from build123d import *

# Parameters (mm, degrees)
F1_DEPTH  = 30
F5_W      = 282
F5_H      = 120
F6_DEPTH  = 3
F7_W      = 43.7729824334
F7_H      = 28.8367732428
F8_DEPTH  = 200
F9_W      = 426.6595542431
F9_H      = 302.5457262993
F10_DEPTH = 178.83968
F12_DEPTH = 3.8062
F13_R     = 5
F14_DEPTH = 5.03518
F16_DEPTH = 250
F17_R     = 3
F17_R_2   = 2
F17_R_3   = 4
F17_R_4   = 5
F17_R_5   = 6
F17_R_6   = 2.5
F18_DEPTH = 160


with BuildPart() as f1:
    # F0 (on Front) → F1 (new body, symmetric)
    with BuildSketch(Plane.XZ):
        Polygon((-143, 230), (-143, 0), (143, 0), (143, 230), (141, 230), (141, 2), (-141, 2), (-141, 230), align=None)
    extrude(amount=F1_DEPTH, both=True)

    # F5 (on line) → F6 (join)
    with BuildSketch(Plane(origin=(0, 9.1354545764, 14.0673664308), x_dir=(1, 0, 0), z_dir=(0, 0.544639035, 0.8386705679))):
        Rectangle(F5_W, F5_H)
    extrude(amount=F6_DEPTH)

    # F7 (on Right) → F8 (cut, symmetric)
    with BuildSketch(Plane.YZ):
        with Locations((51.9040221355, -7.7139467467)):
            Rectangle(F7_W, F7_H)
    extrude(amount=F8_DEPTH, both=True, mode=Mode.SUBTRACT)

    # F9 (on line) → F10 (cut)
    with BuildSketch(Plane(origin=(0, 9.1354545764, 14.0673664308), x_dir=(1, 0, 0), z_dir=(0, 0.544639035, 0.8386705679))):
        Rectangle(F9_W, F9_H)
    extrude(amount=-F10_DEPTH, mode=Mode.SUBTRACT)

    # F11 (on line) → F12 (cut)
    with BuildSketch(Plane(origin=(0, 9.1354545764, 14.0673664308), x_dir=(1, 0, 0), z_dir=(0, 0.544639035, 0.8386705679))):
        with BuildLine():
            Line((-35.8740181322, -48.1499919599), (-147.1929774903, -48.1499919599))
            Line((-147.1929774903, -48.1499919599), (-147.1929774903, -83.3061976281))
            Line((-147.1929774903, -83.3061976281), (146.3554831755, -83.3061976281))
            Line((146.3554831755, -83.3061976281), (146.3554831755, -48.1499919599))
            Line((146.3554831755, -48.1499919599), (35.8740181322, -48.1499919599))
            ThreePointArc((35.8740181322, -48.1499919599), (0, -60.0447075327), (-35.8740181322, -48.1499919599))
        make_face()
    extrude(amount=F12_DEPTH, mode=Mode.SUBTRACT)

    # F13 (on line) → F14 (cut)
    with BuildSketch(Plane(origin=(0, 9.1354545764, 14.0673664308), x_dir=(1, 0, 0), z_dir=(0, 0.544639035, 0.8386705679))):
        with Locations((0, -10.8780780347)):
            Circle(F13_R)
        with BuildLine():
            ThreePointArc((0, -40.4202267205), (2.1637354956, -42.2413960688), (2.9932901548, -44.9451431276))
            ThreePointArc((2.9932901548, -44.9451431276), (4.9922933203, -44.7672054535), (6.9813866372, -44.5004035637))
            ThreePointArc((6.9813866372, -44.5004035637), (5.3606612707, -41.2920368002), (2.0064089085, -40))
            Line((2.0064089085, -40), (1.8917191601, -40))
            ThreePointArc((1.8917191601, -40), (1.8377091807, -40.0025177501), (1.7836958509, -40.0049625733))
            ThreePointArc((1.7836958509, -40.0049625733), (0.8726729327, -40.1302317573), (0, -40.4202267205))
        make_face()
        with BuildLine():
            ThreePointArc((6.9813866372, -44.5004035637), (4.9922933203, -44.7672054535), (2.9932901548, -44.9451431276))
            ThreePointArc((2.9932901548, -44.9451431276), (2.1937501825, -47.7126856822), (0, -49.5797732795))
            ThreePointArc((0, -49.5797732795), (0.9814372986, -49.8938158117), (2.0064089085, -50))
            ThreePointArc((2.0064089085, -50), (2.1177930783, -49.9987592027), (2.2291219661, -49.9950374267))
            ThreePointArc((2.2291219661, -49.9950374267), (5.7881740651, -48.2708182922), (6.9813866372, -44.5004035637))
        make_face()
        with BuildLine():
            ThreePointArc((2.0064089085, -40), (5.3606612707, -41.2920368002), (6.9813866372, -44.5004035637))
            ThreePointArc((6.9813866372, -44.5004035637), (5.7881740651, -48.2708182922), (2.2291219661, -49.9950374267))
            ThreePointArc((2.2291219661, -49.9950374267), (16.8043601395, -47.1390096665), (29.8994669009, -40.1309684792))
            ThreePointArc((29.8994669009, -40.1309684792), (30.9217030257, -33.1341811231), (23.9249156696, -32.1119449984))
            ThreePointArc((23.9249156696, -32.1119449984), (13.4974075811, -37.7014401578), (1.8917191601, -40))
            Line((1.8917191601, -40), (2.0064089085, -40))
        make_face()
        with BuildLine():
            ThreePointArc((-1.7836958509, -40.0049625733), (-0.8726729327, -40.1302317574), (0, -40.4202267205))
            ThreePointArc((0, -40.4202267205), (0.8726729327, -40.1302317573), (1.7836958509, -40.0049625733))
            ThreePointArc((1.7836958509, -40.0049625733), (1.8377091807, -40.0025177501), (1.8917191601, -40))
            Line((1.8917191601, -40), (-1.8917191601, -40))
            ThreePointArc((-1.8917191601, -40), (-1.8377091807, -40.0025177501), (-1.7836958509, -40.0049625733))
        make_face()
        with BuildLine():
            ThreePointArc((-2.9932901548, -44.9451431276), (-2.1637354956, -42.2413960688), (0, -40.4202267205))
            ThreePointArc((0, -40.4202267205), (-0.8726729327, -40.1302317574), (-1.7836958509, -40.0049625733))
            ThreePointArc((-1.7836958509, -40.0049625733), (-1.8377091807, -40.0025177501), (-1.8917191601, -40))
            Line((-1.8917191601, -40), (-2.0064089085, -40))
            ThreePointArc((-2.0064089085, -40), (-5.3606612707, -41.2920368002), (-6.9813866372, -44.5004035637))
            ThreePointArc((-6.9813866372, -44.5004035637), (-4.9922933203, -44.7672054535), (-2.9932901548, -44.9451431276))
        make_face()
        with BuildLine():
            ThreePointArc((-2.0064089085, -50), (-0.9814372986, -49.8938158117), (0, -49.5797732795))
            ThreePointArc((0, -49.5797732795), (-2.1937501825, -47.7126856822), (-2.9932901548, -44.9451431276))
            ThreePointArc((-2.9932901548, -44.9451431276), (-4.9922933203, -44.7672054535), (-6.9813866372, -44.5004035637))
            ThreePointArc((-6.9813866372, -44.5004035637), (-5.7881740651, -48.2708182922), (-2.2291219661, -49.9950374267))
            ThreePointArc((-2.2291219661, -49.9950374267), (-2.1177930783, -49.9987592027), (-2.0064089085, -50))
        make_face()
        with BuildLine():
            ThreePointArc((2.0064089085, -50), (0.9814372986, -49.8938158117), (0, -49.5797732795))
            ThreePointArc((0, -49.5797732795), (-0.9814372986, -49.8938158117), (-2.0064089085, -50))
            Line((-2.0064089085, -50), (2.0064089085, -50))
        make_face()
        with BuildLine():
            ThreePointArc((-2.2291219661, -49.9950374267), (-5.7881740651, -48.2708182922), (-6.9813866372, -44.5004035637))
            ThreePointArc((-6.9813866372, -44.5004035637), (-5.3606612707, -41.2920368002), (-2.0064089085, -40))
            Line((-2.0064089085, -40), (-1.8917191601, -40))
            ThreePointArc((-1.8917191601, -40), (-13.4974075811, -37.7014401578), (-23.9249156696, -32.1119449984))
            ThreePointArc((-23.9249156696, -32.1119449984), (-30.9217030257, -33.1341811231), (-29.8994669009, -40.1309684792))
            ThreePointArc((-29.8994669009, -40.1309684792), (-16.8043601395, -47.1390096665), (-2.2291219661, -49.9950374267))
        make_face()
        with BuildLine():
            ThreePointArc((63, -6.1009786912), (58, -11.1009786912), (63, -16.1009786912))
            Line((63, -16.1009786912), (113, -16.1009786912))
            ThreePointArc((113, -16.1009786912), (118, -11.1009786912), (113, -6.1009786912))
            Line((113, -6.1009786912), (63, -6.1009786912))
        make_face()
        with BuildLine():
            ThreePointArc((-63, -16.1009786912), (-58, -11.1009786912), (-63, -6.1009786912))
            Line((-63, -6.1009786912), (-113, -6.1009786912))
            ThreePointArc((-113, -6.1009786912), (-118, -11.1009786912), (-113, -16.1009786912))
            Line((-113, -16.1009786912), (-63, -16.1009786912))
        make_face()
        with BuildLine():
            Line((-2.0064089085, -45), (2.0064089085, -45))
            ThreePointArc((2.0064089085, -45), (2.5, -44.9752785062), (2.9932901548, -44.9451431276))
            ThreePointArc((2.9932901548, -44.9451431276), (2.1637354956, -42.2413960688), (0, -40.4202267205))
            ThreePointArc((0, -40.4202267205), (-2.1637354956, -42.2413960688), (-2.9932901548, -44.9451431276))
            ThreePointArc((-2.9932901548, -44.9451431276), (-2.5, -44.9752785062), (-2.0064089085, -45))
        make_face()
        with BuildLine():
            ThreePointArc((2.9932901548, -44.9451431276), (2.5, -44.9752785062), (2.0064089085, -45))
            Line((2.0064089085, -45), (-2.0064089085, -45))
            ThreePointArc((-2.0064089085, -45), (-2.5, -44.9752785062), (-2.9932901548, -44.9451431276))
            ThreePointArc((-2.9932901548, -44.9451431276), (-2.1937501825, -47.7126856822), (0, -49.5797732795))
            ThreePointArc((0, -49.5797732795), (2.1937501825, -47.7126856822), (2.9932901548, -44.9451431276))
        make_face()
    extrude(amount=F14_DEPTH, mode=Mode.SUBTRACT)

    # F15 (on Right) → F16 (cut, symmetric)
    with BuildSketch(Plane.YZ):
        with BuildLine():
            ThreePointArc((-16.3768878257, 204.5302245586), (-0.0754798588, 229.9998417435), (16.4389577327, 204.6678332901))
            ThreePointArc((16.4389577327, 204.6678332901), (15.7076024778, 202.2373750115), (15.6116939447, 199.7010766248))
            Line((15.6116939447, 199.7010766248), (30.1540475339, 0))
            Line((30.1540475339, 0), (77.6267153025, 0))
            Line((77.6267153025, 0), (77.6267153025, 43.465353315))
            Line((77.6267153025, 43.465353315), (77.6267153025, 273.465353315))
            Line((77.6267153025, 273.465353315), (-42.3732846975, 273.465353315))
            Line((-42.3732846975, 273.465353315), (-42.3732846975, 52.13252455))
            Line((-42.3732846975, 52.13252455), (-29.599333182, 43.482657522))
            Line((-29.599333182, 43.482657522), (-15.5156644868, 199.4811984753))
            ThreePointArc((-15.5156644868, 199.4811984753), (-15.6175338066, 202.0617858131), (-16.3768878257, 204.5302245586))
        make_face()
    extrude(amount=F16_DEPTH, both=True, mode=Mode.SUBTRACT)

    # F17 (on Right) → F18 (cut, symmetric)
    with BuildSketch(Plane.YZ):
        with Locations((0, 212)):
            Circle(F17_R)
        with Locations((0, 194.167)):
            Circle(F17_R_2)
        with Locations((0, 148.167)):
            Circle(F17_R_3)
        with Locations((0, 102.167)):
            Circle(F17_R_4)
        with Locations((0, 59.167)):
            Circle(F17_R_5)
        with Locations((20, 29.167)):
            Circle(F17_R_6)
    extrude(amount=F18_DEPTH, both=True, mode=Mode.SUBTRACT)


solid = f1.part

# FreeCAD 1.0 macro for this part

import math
import FreeCAD as App
import Part
import Sketcher
Q = App.Units.Quantity

doc = App.newDocument("Part")
body = doc.addObject("PartDesign::Body", "Body")

sketch1 = body.newObject("Sketcher::SketchObject", "Sketch")
sketch1.AttachmentSupport = (doc.getObject("XZ_Plane"), [""])
sketch1.MapMode = "FlatFace"
sketch1.addGeometry(Part.LineSegment(App.Vector(-143, 230, 0), App.Vector(-143, 0, 0)), False)
sketch1.addGeometry(Part.LineSegment(App.Vector(-143, 0, 0), App.Vector(143, 0, 0)), False)
sketch1.addGeometry(Part.LineSegment(App.Vector(143, 0, 0), App.Vector(143, 230, 0)), False)
sketch1.addGeometry(Part.LineSegment(App.Vector(143, 230, 0), App.Vector(141, 230, 0)), False)
sketch1.addGeometry(Part.LineSegment(App.Vector(141, 230, 0), App.Vector(141, 2, 0)), False)
sketch1.addGeometry(Part.LineSegment(App.Vector(141, 2, 0), App.Vector(-141, 2, 0)), False)
sketch1.addGeometry(Part.LineSegment(App.Vector(-141, 2, 0), App.Vector(-141, 230, 0)), False)
sketch1.addGeometry(Part.LineSegment(App.Vector(-141, 230, 0), App.Vector(-143, 230, 0)), False)
sketch1.addConstraint(Sketcher.Constraint("Coincident", 0, 2, 1, 1))
sketch1.addConstraint(Sketcher.Constraint("Coincident", 1, 2, 2, 1))
sketch1.addConstraint(Sketcher.Constraint("Coincident", 2, 2, 3, 1))
sketch1.addConstraint(Sketcher.Constraint("Coincident", 3, 2, 4, 1))
sketch1.addConstraint(Sketcher.Constraint("Coincident", 4, 2, 5, 1))
sketch1.addConstraint(Sketcher.Constraint("Coincident", 5, 2, 6, 1))
sketch1.addConstraint(Sketcher.Constraint("Coincident", 6, 2, 7, 1))
sketch1.addConstraint(Sketcher.Constraint("Coincident", 7, 2, 0, 1))
sketch1.addConstraint(Sketcher.Constraint("Vertical", 0))
sketch1.addConstraint(Sketcher.Constraint("Horizontal", 1))
sketch1.addConstraint(Sketcher.Constraint("Vertical", 2))
sketch1.addConstraint(Sketcher.Constraint("Horizontal", 3))
sketch1.addConstraint(Sketcher.Constraint("Vertical", 4))
sketch1.addConstraint(Sketcher.Constraint("Horizontal", 5))
sketch1.addConstraint(Sketcher.Constraint("Vertical", 6))
sketch1.addConstraint(Sketcher.Constraint("Horizontal", 7))
sketch1.addConstraint(Sketcher.Constraint("Symmetric", 0, 2, 1, 2, -1, 1))
sketch1.addConstraint(Sketcher.Constraint("Symmetric", 3, 2, 6, 2, -2))
sketch1.addConstraint(Sketcher.Constraint("DistanceX", 1, 1, 1, 2, Q("286 mm")))
sketch1.addConstraint(Sketcher.Constraint("DistanceX", 3, 2, 3, 1, Q("2 mm")))
sketch1.addConstraint(Sketcher.Constraint("DistanceY", 0, 2, 0, 1, Q("230 mm")))
sketch1.addConstraint(Sketcher.Constraint("DistanceY", 4, 2, 4, 1, Q("228 mm")))
pad1 = body.newObject("PartDesign::Pad", "Pad")
pad1.Profile = sketch1
pad1.Length = 60
pad1.Midplane = True

sketch2 = body.newObject("Sketcher::SketchObject", "Sketch001")
sketch2.Placement = App.Placement(App.Vector(0, 9.135455, 14.067366), App.Rotation(App.Vector(1, 0, 0), App.Vector(0, 0.838670568, -0.544639035), App.Vector(0, 0.544639035, 0.838670568), "ZXY"))
sketch2.addGeometry(Part.LineSegment(App.Vector(-141, 60, 0), App.Vector(-141, -60, 0)), False)
sketch2.addGeometry(Part.LineSegment(App.Vector(-141, -60, 0), App.Vector(141, -60, 0)), False)
sketch2.addGeometry(Part.LineSegment(App.Vector(141, -60, 0), App.Vector(141, 60, 0)), False)
sketch2.addGeometry(Part.LineSegment(App.Vector(141, 60, 0), App.Vector(-141, 60, 0)), False)
sketch2.addConstraint(Sketcher.Constraint("Coincident", 0, 2, 1, 1))
sketch2.addConstraint(Sketcher.Constraint("Coincident", 1, 2, 2, 1))
sketch2.addConstraint(Sketcher.Constraint("Coincident", 2, 2, 3, 1))
sketch2.addConstraint(Sketcher.Constraint("Coincident", 3, 2, 0, 1))
sketch2.addConstraint(Sketcher.Constraint("Vertical", 0))
sketch2.addConstraint(Sketcher.Constraint("Horizontal", 1))
sketch2.addConstraint(Sketcher.Constraint("Vertical", 2))
sketch2.addConstraint(Sketcher.Constraint("Horizontal", 3))
sketch2.addConstraint(Sketcher.Constraint("Symmetric", 0, 2, 2, 2, -1, 1))
sketch2.addConstraint(Sketcher.Constraint("DistanceX", 1, 1, 1, 2, Q("282 mm")))
sketch2.addConstraint(Sketcher.Constraint("DistanceY", 0, 2, 0, 1, Q("120 mm")))
pad2 = body.newObject("PartDesign::Pad", "Pad001")
pad2.Profile = sketch2
pad2.Length = 3

sketch3 = body.newObject("Sketcher::SketchObject", "Sketch002")
sketch3.AttachmentSupport = (doc.getObject("YZ_Plane"), [""])
sketch3.MapMode = "FlatFace"
sketch3.addGeometry(Part.LineSegment(App.Vector(30, 7, 0), App.Vector(30, -22, 0)), False)
sketch3.addGeometry(Part.LineSegment(App.Vector(30, -22, 0), App.Vector(74, -22, 0)), False)
sketch3.addGeometry(Part.LineSegment(App.Vector(74, -22, 0), App.Vector(74, 7, 0)), False)
sketch3.addGeometry(Part.LineSegment(App.Vector(74, 7, 0), App.Vector(30, 7, 0)), False)
sketch3.addConstraint(Sketcher.Constraint("Coincident", 0, 2, 1, 1))
sketch3.addConstraint(Sketcher.Constraint("Coincident", 1, 2, 2, 1))
sketch3.addConstraint(Sketcher.Constraint("Coincident", 2, 2, 3, 1))
sketch3.addConstraint(Sketcher.Constraint("Coincident", 3, 2, 0, 1))
sketch3.addConstraint(Sketcher.Constraint("Vertical", 0))
sketch3.addConstraint(Sketcher.Constraint("Horizontal", 1))
sketch3.addConstraint(Sketcher.Constraint("Vertical", 2))
sketch3.addConstraint(Sketcher.Constraint("Horizontal", 3))
sketch3.addConstraint(Sketcher.Constraint("DistanceX", 1, 1, 1, 2, Q("43.772982 mm")))
sketch3.addConstraint(Sketcher.Constraint("DistanceY", 0, 2, 0, 1, Q("28.836773 mm")))
sketch3.addConstraint(Sketcher.Constraint("DistanceX", -1, 1, 0, 2, Q("30.017531 mm")))
sketch3.addConstraint(Sketcher.Constraint("DistanceY", -1, 1, 2, 2, Q("6.70444 mm")))
pocket1 = body.newObject("PartDesign::Pocket", "Pocket")
pocket1.Profile = sketch3
pocket1.Length = 400
pocket1.Midplane = True

sketch4 = body.newObject("Sketcher::SketchObject", "Sketch003")
sketch4.Placement = App.Placement(App.Vector(0, 9.135455, 14.067366), App.Rotation(App.Vector(1, 0, 0), App.Vector(0, 0.838670568, -0.544639035), App.Vector(0, 0.544639035, 0.838670568), "ZXY"))
sketch4.addGeometry(Part.LineSegment(App.Vector(-213, 151, 0), App.Vector(-213, -151, 0)), False)
sketch4.addGeometry(Part.LineSegment(App.Vector(-213, -151, 0), App.Vector(213, -151, 0)), False)
sketch4.addGeometry(Part.LineSegment(App.Vector(213, -151, 0), App.Vector(213, 151, 0)), False)
sketch4.addGeometry(Part.LineSegment(App.Vector(213, 151, 0), App.Vector(-213, 151, 0)), False)
sketch4.addConstraint(Sketcher.Constraint("Coincident", 0, 2, 1, 1))
sketch4.addConstraint(Sketcher.Constraint("Coincident", 1, 2, 2, 1))
sketch4.addConstraint(Sketcher.Constraint("Coincident", 2, 2, 3, 1))
sketch4.addConstraint(Sketcher.Constraint("Coincident", 3, 2, 0, 1))
sketch4.addConstraint(Sketcher.Constraint("Vertical", 0))
sketch4.addConstraint(Sketcher.Constraint("Horizontal", 1))
sketch4.addConstraint(Sketcher.Constraint("Vertical", 2))
sketch4.addConstraint(Sketcher.Constraint("Horizontal", 3))
sketch4.addConstraint(Sketcher.Constraint("Symmetric", 0, 2, 2, 2, -1, 1))
sketch4.addConstraint(Sketcher.Constraint("DistanceX", 1, 1, 1, 2, Q("426.659554 mm")))
sketch4.addConstraint(Sketcher.Constraint("DistanceY", 0, 2, 0, 1, Q("302.545726 mm")))
pocket2 = body.newObject("PartDesign::Pocket", "Pocket001")
pocket2.Profile = sketch4
pocket2.Length = 178.83968

sketch5 = body.newObject("Sketcher::SketchObject", "Sketch004")
sketch5.Placement = App.Placement(App.Vector(0, 9.135455, 14.067366), App.Rotation(App.Vector(1, 0, 0), App.Vector(0, 0.838670568, -0.544639035), App.Vector(0, 0.544639035, 0.838670568), "ZXY"))
sketch5.addGeometry(Part.LineSegment(App.Vector(-36, -48, 0), App.Vector(-147, -48, 0)), False)
sketch5.addGeometry(Part.LineSegment(App.Vector(-147, -48, 0), App.Vector(-147, -83, 0)), False)
sketch5.addGeometry(Part.LineSegment(App.Vector(-147, -83, 0), App.Vector(146, -83, 0)), False)
sketch5.addGeometry(Part.LineSegment(App.Vector(146, -83, 0), App.Vector(146, -48, 0)), False)
sketch5.addGeometry(Part.LineSegment(App.Vector(146, -48, 0), App.Vector(36, -48, 0)), False)
sketch5.addGeometry(Part.ArcOfCircle(Part.Circle(App.Vector(0, 0, 0), App.Vector(0, 0, 1), 60), math.radians(-127), math.radians(-53)), False)
sketch5.addConstraint(Sketcher.Constraint("Coincident", 0, 2, 1, 1))
sketch5.addConstraint(Sketcher.Constraint("Coincident", 1, 2, 2, 1))
sketch5.addConstraint(Sketcher.Constraint("Coincident", 2, 2, 3, 1))
sketch5.addConstraint(Sketcher.Constraint("Coincident", 3, 2, 4, 1))
sketch5.addConstraint(Sketcher.Constraint("Coincident", 4, 2, 5, 2))
sketch5.addConstraint(Sketcher.Constraint("Coincident", 5, 1, 0, 1))
sketch5.addConstraint(Sketcher.Constraint("Horizontal", 0))
sketch5.addConstraint(Sketcher.Constraint("Vertical", 1))
sketch5.addConstraint(Sketcher.Constraint("Horizontal", 2))
sketch5.addConstraint(Sketcher.Constraint("Vertical", 3))
sketch5.addConstraint(Sketcher.Constraint("Horizontal", 4))
sketch5.addConstraint(Sketcher.Constraint("Coincident", 5, 3, -1, 1))
sketch5.addConstraint(Sketcher.Constraint("Horizontal", 0, 2, 3, 2))
sketch5.addConstraint(Sketcher.Constraint("Radius", 5, Q("60.044708 mm")))
sketch5.addConstraint(Sketcher.Constraint("DistanceX", 0, 2, 0, 1, Q("111.318959 mm")))
sketch5.addConstraint(Sketcher.Constraint("DistanceX", 2, 1, 2, 2, Q("293.548461 mm")))
sketch5.addConstraint(Sketcher.Constraint("DistanceX", 4, 2, 4, 1, Q("110.481465 mm")))
sketch5.addConstraint(Sketcher.Constraint("DistanceY", 1, 2, 1, 1, Q("35.156206 mm")))
pocket3 = body.newObject("PartDesign::Pocket", "Pocket002")
pocket3.Profile = sketch5
pocket3.Length = 3.8062
pocket3.Reversed = True

sketch6 = body.newObject("Sketcher::SketchObject", "Sketch005")
sketch6.Placement = App.Placement(App.Vector(0, 9.135455, 14.067366), App.Rotation(App.Vector(1, 0, 0), App.Vector(0, 0.838670568, -0.544639035), App.Vector(0, 0.544639035, 0.838670568), "ZXY"))
sketch6.addGeometry(Part.Circle(App.Vector(0, -10.88, 0), App.Vector(0, 0, 1), 5), False)
sketch6.addGeometry(Part.ArcOfCircle(Part.Circle(App.Vector(-2.01, -45, 0), App.Vector(0, 0, 1), 5), math.radians(-92.55), math.radians(-90)), False)
sketch6.addGeometry(Part.LineSegment(App.Vector(-2.01, -50, 0), App.Vector(2.01, -50, 0)), False)
sketch6.addGeometry(Part.ArcOfCircle(Part.Circle(App.Vector(2.01, -45, 0), App.Vector(0, 0, 1), 5), math.radians(-90), math.radians(-87.45)), False)
sketch6.addGeometry(Part.ArcOfCircle(Part.Circle(App.Vector(0, 0, 0), App.Vector(0, 0, 1), 50.04), math.radians(-87), math.radians(-53)), False)
sketch6.addGeometry(Part.ArcOfCircle(Part.Circle(App.Vector(26.91, -36.12, 0), App.Vector(0, 0, 1), 5), math.radians(-53), math.radians(127)), False)
sketch6.addGeometry(Part.ArcOfCircle(Part.Circle(App.Vector(0, 0, 0), App.Vector(0, 0, 1), 40.04), math.radians(-87), math.radians(-53)), False)
sketch6.addGeometry(Part.LineSegment(App.Vector(1.89, -40, 0), App.Vector(-1.89, -40, 0)), False)
sketch6.addGeometry(Part.ArcOfCircle(Part.Circle(App.Vector(0, 0, 0), App.Vector(0, 0, 1), 40.04), math.radians(-127), math.radians(-93)), False)
sketch6.addGeometry(Part.ArcOfCircle(Part.Circle(App.Vector(-26.91, -36.12, 0), App.Vector(0, 0, 1), 5), math.radians(53), math.radians(233)), False)
sketch6.addGeometry(Part.ArcOfCircle(Part.Circle(App.Vector(0, 0, 0), App.Vector(0, 0, 1), 50.04), math.radians(-127), math.radians(-93)), False)
sketch6.addGeometry(Part.ArcOfCircle(Part.Circle(App.Vector(63, -11.1, 0), App.Vector(0, 0, 1), 5), math.radians(90), math.radians(270)), False)
sketch6.addGeometry(Part.LineSegment(App.Vector(63, -16.1, 0), App.Vector(113, -16.1, 0)), False)
sketch6.addGeometry(Part.ArcOfCircle(Part.Circle(App.Vector(113, -11.1, 0), App.Vector(0, 0, 1), 5), math.radians(-90), math.radians(90)), False)
sketch6.addGeometry(Part.LineSegment(App.Vector(113, -6.1, 0), App.Vector(63, -6.1, 0)), False)
sketch6.addGeometry(Part.ArcOfCircle(Part.Circle(App.Vector(-63, -11.1, 0), App.Vector(0, 0, 1), 5), math.radians(-90), math.radians(90)), False)
sketch6.addGeometry(Part.LineSegment(App.Vector(-63, -6.1, 0), App.Vector(-113, -6.1, 0)), False)
sketch6.addGeometry(Part.ArcOfCircle(Part.Circle(App.Vector(-113, -11.1, 0), App.Vector(0, 0, 1), 5), math.radians(90), math.radians(270)), False)
sketch6.addGeometry(Part.LineSegment(App.Vector(-113, -16.1, 0), App.Vector(-63, -16.1, 0)), False)
sketch6.addConstraint(Sketcher.Constraint("Tangent", 1, 2, 2, 1))
sketch6.addConstraint(Sketcher.Constraint("Tangent", 2, 2, 3, 1))
sketch6.addConstraint(Sketcher.Constraint("Tangent", 3, 2, 4, 1))
sketch6.addConstraint(Sketcher.Constraint("Tangent", 4, 2, 5, 1))
sketch6.addConstraint(Sketcher.Constraint("Tangent", 5, 2, 6, 2))
sketch6.addConstraint(Sketcher.Constraint("Coincident", 6, 1, 7, 1))
sketch6.addConstraint(Sketcher.Constraint("Coincident", 7, 2, 8, 2))
sketch6.addConstraint(Sketcher.Constraint("Tangent", 8, 1, 9, 1))
sketch6.addConstraint(Sketcher.Constraint("Tangent", 9, 2, 10, 1))
sketch6.addConstraint(Sketcher.Constraint("Tangent", 10, 2, 1, 1))
sketch6.addConstraint(Sketcher.Constraint("Tangent", 11, 2, 12, 1))
sketch6.addConstraint(Sketcher.Constraint("Tangent", 12, 2, 13, 1))
sketch6.addConstraint(Sketcher.Constraint("Tangent", 13, 2, 14, 1))
sketch6.addConstraint(Sketcher.Constraint("Tangent", 14, 2, 11, 1))
sketch6.addConstraint(Sketcher.Constraint("Tangent", 15, 2, 16, 1))
sketch6.addConstraint(Sketcher.Constraint("Tangent", 16, 2, 17, 1))
sketch6.addConstraint(Sketcher.Constraint("Tangent", 17, 2, 18, 1))
sketch6.addConstraint(Sketcher.Constraint("Tangent", 18, 2, 15, 1))
sketch6.addConstraint(Sketcher.Constraint("Horizontal", 2))
sketch6.addConstraint(Sketcher.Constraint("Horizontal", 7))
sketch6.addConstraint(Sketcher.Constraint("Horizontal", 12))
sketch6.addConstraint(Sketcher.Constraint("Horizontal", 14))
sketch6.addConstraint(Sketcher.Constraint("Horizontal", 16))
sketch6.addConstraint(Sketcher.Constraint("Horizontal", 18))
sketch6.addConstraint(Sketcher.Constraint("Coincident", 4, 3, -1, 1))
sketch6.addConstraint(Sketcher.Constraint("Coincident", 6, 3, -1, 1))
sketch6.addConstraint(Sketcher.Constraint("Coincident", 8, 3, -1, 1))
sketch6.addConstraint(Sketcher.Constraint("Coincident", 10, 3, -1, 1))
sketch6.addConstraint(Sketcher.Constraint("Equal", 0, 1))
sketch6.addConstraint(Sketcher.Constraint("Equal", 1, 3))
sketch6.addConstraint(Sketcher.Constraint("Equal", 3, 5))
sketch6.addConstraint(Sketcher.Constraint("Equal", 6, 8))
sketch6.addConstraint(Sketcher.Constraint("Equal", 5, 9))
sketch6.addConstraint(Sketcher.Constraint("Equal", 9, 11))
sketch6.addConstraint(Sketcher.Constraint("Equal", 13, 15))
sketch6.addConstraint(Sketcher.Constraint("Symmetric", 11, 3, 15, 3, -2))
sketch6.addConstraint(Sketcher.Constraint("PointOnObject", 0, 3, -2))
sketch6.addConstraint(Sketcher.Constraint("Horizontal", 5, 3, 9, 3))
sketch6.addConstraint(Sketcher.Constraint("Equal", 14, 16))
sketch6.addConstraint(Sketcher.Constraint("Diameter", 0, Q("10 mm")))
sketch6.addConstraint(Sketcher.Constraint("DistanceX", 12, 1, 12, 2, Q("50 mm")))
sketch6.addConstraint(Sketcher.Constraint("DistanceY", 1, 3, -1, 1, Q("45 mm")))
sketch6.addConstraint(Sketcher.Constraint("DistanceX", -1, 1, 11, 3, Q("63 mm")))
sketch6.addConstraint(Sketcher.Constraint("DistanceY", 6, 1, -1, 1, Q("40 mm")))
sketch6.addConstraint(Sketcher.Constraint("Radius", 4, Q("50.044708 mm")))
sketch6.addConstraint(Sketcher.Constraint("DistanceX", 1, 3, 5, 3, Q("28.9186 mm")))
sketch6.addConstraint(Sketcher.Constraint("DistanceY", 11, 3, 0, 3, Q("0.222901 mm")))
sketch6.addConstraint(Sketcher.Constraint("DistanceY", 0, 3, -1, 1, Q("10.878078 mm")))
pocket4 = body.newObject("PartDesign::Pocket", "Pocket003")
pocket4.Profile = sketch6
pocket4.Length = 5.03518
pocket4.Reversed = True

sketch7 = body.newObject("Sketcher::SketchObject", "Sketch006")
sketch7.AttachmentSupport = (doc.getObject("YZ_Plane"), [""])
sketch7.MapMode = "FlatFace"
sketch7.addGeometry(Part.ArcOfCircle(Part.Circle(App.Vector(0, 212, 0), App.Vector(0, 0, 1), 18), math.radians(-24.03801), math.radians(204.518531)), False)
sketch7.addGeometry(Part.ArcOfCircle(Part.Circle(App.Vector(25.571712, 200.594407, 0), App.Vector(0, 0, 1), 10), math.radians(155.96199), math.radians(185.12524)), False)
sketch7.addGeometry(Part.LineSegment(App.Vector(15.611694, 199.701077, 0), App.Vector(30.154048, 0, 0)), False)
sketch7.addGeometry(Part.LineSegment(App.Vector(30.154048, 0, 0), App.Vector(77.626715, 0, 0)), False)
sketch7.addGeometry(Part.LineSegment(App.Vector(77.626715, 0, 0), App.Vector(77.626715, 273.465353, 0)), False)
sketch7.addGeometry(Part.LineSegment(App.Vector(77.626715, 273.465353, 0), App.Vector(-42.373285, 273.465353, 0)), False)
sketch7.addGeometry(Part.LineSegment(App.Vector(-42.373285, 273.465353, 0), App.Vector(-42.373285, 52.132525, 0)), False)
sketch7.addGeometry(Part.LineSegment(App.Vector(-42.373285, 52.132525, 0), App.Vector(-29.599333, 43.482658, 0)), False)
sketch7.addGeometry(Part.LineSegment(App.Vector(-29.599333, 43.482658, 0), App.Vector(-15.515664, 199.481198, 0)), False)
sketch7.addGeometry(Part.ArcOfCircle(Part.Circle(App.Vector(-25.475159, 200.380349, 0), App.Vector(0, 0, 1), 10), math.radians(-5.158722), math.radians(24.518531)), False)
sketch7.addConstraint(Sketcher.Constraint("Coincident", 0, 1, 1, 1))
sketch7.addConstraint(Sketcher.Constraint("Coincident", 1, 2, 2, 1))
sketch7.addConstraint(Sketcher.Constraint("Coincident", 2, 2, 3, 1))
sketch7.addConstraint(Sketcher.Constraint("Coincident", 3, 2, 4, 1))
sketch7.addConstraint(Sketcher.Constraint("Coincident", 4, 2, 5, 1))
sketch7.addConstraint(Sketcher.Constraint("Coincident", 5, 2, 6, 1))
sketch7.addConstraint(Sketcher.Constraint("Coincident", 6, 2, 7, 1))
sketch7.addConstraint(Sketcher.Constraint("Coincident", 7, 2, 8, 1))
sketch7.addConstraint(Sketcher.Constraint("Coincident", 8, 2, 9, 1))
sketch7.addConstraint(Sketcher.Constraint("Coincident", 9, 2, 0, 2))
sketch7.addConstraint(Sketcher.Constraint("Horizontal", 3))
sketch7.addConstraint(Sketcher.Constraint("Vertical", 4))
sketch7.addConstraint(Sketcher.Constraint("Horizontal", 5))
sketch7.addConstraint(Sketcher.Constraint("Vertical", 6))
sketch7.addConstraint(Sketcher.Constraint("PointOnObject", 0, 3, -2))
sketch7.addConstraint(Sketcher.Constraint("PointOnObject", 2, 2, -1))
sketch7.addConstraint(Sketcher.Constraint("Radius", 0, Q("18 mm")))
sketch7.addConstraint(Sketcher.Constraint("Radius", 1, Q("10 mm")))
sketch7.addConstraint(Sketcher.Constraint("Radius", 9, Q("10 mm")))
sketch7.addConstraint(Sketcher.Constraint("DistanceX", 5, 2, 5, 1, Q("120 mm")))
sketch7.addConstraint(Sketcher.Constraint("DistanceY", -1, 1, 0, 3, Q("212 mm")))
sketch7.addConstraint(Sketcher.Constraint("DistanceY", 6, 2, 6, 1, Q("221.332829 mm")))
sketch7.addConstraint(Sketcher.Constraint("DistanceY", -1, 1, 8, 2, Q("199.481198 mm")))
sketch7.addConstraint(Sketcher.Constraint("Distance", 2, Q("200.229868 mm")))
sketch7.addConstraint(Sketcher.Constraint("DistanceX", 3, 1, 3, 2, Q("47.472668 mm")))
sketch7.addConstraint(Sketcher.Constraint("DistanceY", 4, 1, 4, 2, Q("273.465353 mm")))
sketch7.addConstraint(Sketcher.Constraint("DistanceX", 9, 3, -1, 1, Q("25.475159 mm")))
sketch7.addConstraint(Sketcher.Constraint("DistanceX", 9, 3, 1, 3, Q("51.046871 mm")))
sketch7.addConstraint(Sketcher.Constraint("DistanceY", 1, 2, 1, 3, Q("0.893331 mm")))
sketch7.addConstraint(Sketcher.Constraint("DistanceX", 0, 1, 2, 2, Q("13.71509 mm")))
sketch7.addConstraint(Sketcher.Constraint("DistanceX", 6, 2, 7, 2, Q("12.773952 mm")))
sketch7.addConstraint(Sketcher.Constraint("DistanceY", 7, 2, 9, 3, Q("156.897692 mm")))
sketch7.addConstraint(Sketcher.Constraint("DistanceX", 9, 3, 9, 2, Q("9.098271 mm")))
pocket5 = body.newObject("PartDesign::Pocket", "Pocket004")
pocket5.Profile = sketch7
pocket5.Length = 500
pocket5.Midplane = True

sketch8 = body.newObject("Sketcher::SketchObject", "Sketch007")
sketch8.AttachmentSupport = (doc.getObject("YZ_Plane"), [""])
sketch8.MapMode = "FlatFace"
sketch8.addGeometry(Part.Circle(App.Vector(0, 212, 0), App.Vector(0, 0, 1), 3), False)
sketch8.addGeometry(Part.Circle(App.Vector(0, 194.2, 0), App.Vector(0, 0, 1), 2), False)
sketch8.addGeometry(Part.Circle(App.Vector(0, 148.2, 0), App.Vector(0, 0, 1), 4), False)
sketch8.addGeometry(Part.Circle(App.Vector(0, 102.2, 0), App.Vector(0, 0, 1), 5), False)
sketch8.addGeometry(Part.Circle(App.Vector(0, 59.2, 0), App.Vector(0, 0, 1), 6), False)
sketch8.addGeometry(Part.Circle(App.Vector(20, 29.2, 0), App.Vector(0, 0, 1), 2.5), False)
sketch8.addConstraint(Sketcher.Constraint("PointOnObject", 0, 3, -2))
sketch8.addConstraint(Sketcher.Constraint("PointOnObject", 1, 3, -2))
sketch8.addConstraint(Sketcher.Constraint("PointOnObject", 2, 3, -2))
sketch8.addConstraint(Sketcher.Constraint("PointOnObject", 3, 3, -2))
sketch8.addConstraint(Sketcher.Constraint("PointOnObject", 4, 3, -2))
sketch8.addConstraint(Sketcher.Constraint("Diameter", 0, Q("6 mm")))
sketch8.addConstraint(Sketcher.Constraint("Diameter", 1, Q("4 mm")))
sketch8.addConstraint(Sketcher.Constraint("Diameter", 2, Q("8 mm")))
sketch8.addConstraint(Sketcher.Constraint("Diameter", 3, Q("10 mm")))
sketch8.addConstraint(Sketcher.Constraint("Diameter", 4, Q("12 mm")))
sketch8.addConstraint(Sketcher.Constraint("Diameter", 5, Q("5 mm")))
sketch8.addConstraint(Sketcher.Constraint("DistanceY", -1, 1, 0, 3, Q("212 mm")))
sketch8.addConstraint(Sketcher.Constraint("DistanceX", -1, 1, 5, 3, Q("20 mm")))
sketch8.addConstraint(Sketcher.Constraint("DistanceY", 2, 3, 1, 3, Q("46 mm")))
sketch8.addConstraint(Sketcher.Constraint("DistanceY", 3, 3, 2, 3, Q("46 mm")))
sketch8.addConstraint(Sketcher.Constraint("DistanceY", 4, 3, 3, 3, Q("43 mm")))
sketch8.addConstraint(Sketcher.Constraint("DistanceY", 5, 3, 4, 3, Q("30 mm")))
sketch8.addConstraint(Sketcher.Constraint("DistanceY", -1, 1, 1, 3, Q("194.167 mm")))
pocket6 = body.newObject("PartDesign::Pocket", "Pocket005")
pocket6.Profile = sketch8
pocket6.Length = 320
pocket6.Midplane = True

doc.recompute()
